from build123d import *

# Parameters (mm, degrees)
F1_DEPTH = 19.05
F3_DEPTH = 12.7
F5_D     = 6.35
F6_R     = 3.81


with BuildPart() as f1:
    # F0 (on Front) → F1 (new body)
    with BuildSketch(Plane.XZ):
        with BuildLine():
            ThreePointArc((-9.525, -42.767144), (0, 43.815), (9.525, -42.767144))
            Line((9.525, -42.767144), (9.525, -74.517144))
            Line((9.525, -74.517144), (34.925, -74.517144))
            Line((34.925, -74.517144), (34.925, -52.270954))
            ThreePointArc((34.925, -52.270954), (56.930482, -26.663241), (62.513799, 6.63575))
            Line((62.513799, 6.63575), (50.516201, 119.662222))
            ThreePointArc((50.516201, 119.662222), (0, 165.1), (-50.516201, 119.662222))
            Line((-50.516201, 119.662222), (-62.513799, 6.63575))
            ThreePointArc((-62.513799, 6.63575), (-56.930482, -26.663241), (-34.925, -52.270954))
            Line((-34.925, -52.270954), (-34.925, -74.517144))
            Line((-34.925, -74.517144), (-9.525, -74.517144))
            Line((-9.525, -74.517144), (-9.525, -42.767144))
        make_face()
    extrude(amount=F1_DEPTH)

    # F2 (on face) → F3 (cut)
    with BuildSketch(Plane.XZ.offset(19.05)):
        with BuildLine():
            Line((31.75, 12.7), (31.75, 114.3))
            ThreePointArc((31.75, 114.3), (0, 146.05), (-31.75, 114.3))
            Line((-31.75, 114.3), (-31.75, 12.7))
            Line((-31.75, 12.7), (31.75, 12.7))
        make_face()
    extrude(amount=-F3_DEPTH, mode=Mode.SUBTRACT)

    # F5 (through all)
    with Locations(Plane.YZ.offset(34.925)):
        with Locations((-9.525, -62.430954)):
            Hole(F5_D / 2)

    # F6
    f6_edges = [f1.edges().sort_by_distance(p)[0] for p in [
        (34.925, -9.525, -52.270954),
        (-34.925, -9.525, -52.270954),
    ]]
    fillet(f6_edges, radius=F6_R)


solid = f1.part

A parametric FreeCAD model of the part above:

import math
import FreeCAD as App
import Part
import Sketcher

V = App.Vector
Q = App.Units.Quantity


def edges_at(feature, points):
    """Names of the edges that pass closest to the given points."""
    edges = feature.Shape.Edges
    near = lambda p: min(range(len(edges)), key=lambda i: edges[i].distToShape(Part.Vertex(*p))[0])
    return sorted({f"Edge{near(p) + 1}" for p in points})

doc = App.newDocument("Part")
body = doc.addObject("PartDesign::Body", "Body")

# Sketch on XZ plane
sketch1 = body.newObject("Sketcher::SketchObject", "Sketch")
sketch1.AttachmentSupport = (doc.getObject("XZ_Plane"), [""])
sketch1.MapMode = "FlatFace"
sketch1.addGeometry(Part.ArcOfCircle(Part.Circle(V(0, 0, 0), V(0, 0, 1), 43.815), math.radians(-77.444142), math.radians(257.444142)), False)
sketch1.addGeometry(Part.LineSegment(V(9.525, -42.767144, 0), V(9.525, -74.517144, 0)), False)
sketch1.addGeometry(Part.LineSegment(V(9.525, -74.517144, 0), V(34.925, -74.517144, 0)), False)
sketch1.addGeometry(Part.LineSegment(V(34.925, -74.517144, 0), V(34.925, -52.270954, 0)), False)
sketch1.addGeometry(Part.ArcOfCircle(Part.Circle(V(-0.000002, 0.000001, 0), V(0, 0, 1), 62.865003), math.radians(-56.25101), math.radians(6.059174)), False)
sketch1.addGeometry(Part.LineSegment(V(62.513799, 6.63575, 0), V(50.516201, 119.662222, 0)), False)
sketch1.addGeometry(Part.ArcOfCircle(Part.Circle(V(0, 114.3, 0), V(0, 0, 1), 50.8), math.radians(6.059175), math.radians(173.940825)), False)
sketch1.addGeometry(Part.LineSegment(V(-50.516201, 119.662222, 0), V(-62.513799, 6.63575, 0)), False)
sketch1.addGeometry(Part.ArcOfCircle(Part.Circle(V(0.000002, 0.000001, 0), V(0, 0, 1), 62.865003), math.radians(173.940826), math.radians(236.25101)), False)
sketch1.addGeometry(Part.LineSegment(V(-34.925, -52.270954, 0), V(-34.925, -74.517144, 0)), False)
sketch1.addGeometry(Part.LineSegment(V(-34.925, -74.517144, 0), V(-9.525, -74.517144, 0)), False)
sketch1.addGeometry(Part.LineSegment(V(-9.525, -74.517144, 0), V(-9.525, -42.767144, 0)), False)
sketch1.addConstraint(Sketcher.Constraint("Coincident", 0, 1, 1, 1))
sketch1.addConstraint(Sketcher.Constraint("Coincident", 1, 2, 2, 1))
sketch1.addConstraint(Sketcher.Constraint("Coincident", 2, 2, 3, 1))
sketch1.addConstraint(Sketcher.Constraint("Coincident", 3, 2, 4, 1))
sketch1.addConstraint(Sketcher.Constraint("Tangent", 4, 2, 5, 1))
sketch1.addConstraint(Sketcher.Constraint("Tangent", 5, 2, 6, 1))
sketch1.addConstraint(Sketcher.Constraint("Tangent", 6, 2, 7, 1))
sketch1.addConstraint(Sketcher.Constraint("Tangent", 7, 2, 8, 1))
sketch1.addConstraint(Sketcher.Constraint("Coincident", 8, 2, 9, 1))
sketch1.addConstraint(Sketcher.Constraint("Coincident", 9, 2, 10, 1))
sketch1.addConstraint(Sketcher.Constraint("Coincident", 10, 2, 11, 1))
sketch1.addConstraint(Sketcher.Constraint("Coincident", 11, 2, 0, 2))
sketch1.addConstraint(Sketcher.Constraint("Vertical", 1))
sketch1.addConstraint(Sketcher.Constraint("Horizontal", 2))
sketch1.addConstraint(Sketcher.Constraint("Vertical", 3))
sketch1.addConstraint(Sketcher.Constraint("Vertical", 9))
sketch1.addConstraint(Sketcher.Constraint("Horizontal", 10))
sketch1.addConstraint(Sketcher.Constraint("Vertical", 11))
sketch1.addConstraint(Sketcher.Constraint("Coincident", 0, 3, -1, 1))
sketch1.addConstraint(Sketcher.Constraint("Coincident", 4, 3, -1, 1))
sketch1.addConstraint(Sketcher.Constraint("Coincident", 8, 3, -1, 1))
sketch1.addConstraint(Sketcher.Constraint("Equal", 4, 8))
sketch1.addConstraint(Sketcher.Constraint("Symmetric", 2, 2, 9, 2, -2))
sketch1.addConstraint(Sketcher.Constraint("PointOnObject", 6, 3, -2))
sketch1.addConstraint(Sketcher.Constraint("Horizontal", 0, 1, 11, 2))
sketch1.addConstraint(Sketcher.Constraint("Radius", 6, Q("2 in")))
sketch1.addConstraint(Sketcher.Constraint("DistanceX", 2, 1, 2, 2, Q("1 in")))
sketch1.addConstraint(Sketcher.Constraint("Radius", 0, Q("1.725 in")))
sketch1.addConstraint(Sketcher.Constraint("Radius", 4, Q("2.4750001 in")))
sketch1.addConstraint(Sketcher.Constraint("DistanceY", 1, 2, 1, 1, Q("1.25 in")))
sketch1.addConstraint(Sketcher.Constraint("DistanceY", -1, 1, 6, 3, Q("4.5 in")))
sketch1.addConstraint(Sketcher.Constraint("DistanceX", 8, 2, 0, 1, Q("1.75 in")))
pad1 = body.newObject("PartDesign::Pad", "Pad")
pad1.Profile = sketch1
pad1.Length = Q("0.75 in")

# Sketch on XZ plane
sketch2 = body.newObject("Sketcher::SketchObject", "Sketch001")
sketch2.AttachmentSupport = (doc.getObject("XZ_Plane"), [""])
sketch2.MapMode = "FlatFace"
sketch2.AttachmentOffset = App.Placement(V(0, 0, 0.75 * 25.4), App.Rotation())
sketch2.addGeometry(Part.LineSegment(V(31.75, 12.7, 0), V(31.75, 114.3, 0)), False)
sketch2.addGeometry(Part.ArcOfCircle(Part.Circle(V(0, 114.3, 0), V(0, 0, 1), 31.75), math.radians(0), math.radians(180)), False)
sketch2.addGeometry(Part.LineSegment(V(-31.75, 114.3, 0), V(-31.75, 12.7, 0)), False)
sketch2.addGeometry(Part.LineSegment(V(-31.75, 12.7, 0), V(31.75, 12.7, 0)), False)
sketch2.addConstraint(Sketcher.Constraint("Tangent", 0, 2, 1, 1))
sketch2.addConstraint(Sketcher.Constraint("Tangent", 1, 2, 2, 1))
sketch2.addConstraint(Sketcher.Constraint("Coincident", 2, 2, 3, 1))
sketch2.addConstraint(Sketcher.Constraint("Coincident", 3, 2, 0, 1))
sketch2.addConstraint(Sketcher.Constraint("Vertical", 0))
sketch2.addConstraint(Sketcher.Constraint("Vertical", 2))
sketch2.addConstraint(Sketcher.Constraint("Horizontal", 3))
sketch2.addConstraint(Sketcher.Constraint("PointOnObject", 1, 3, -2))
sketch2.addConstraint(Sketcher.Constraint("DistanceY", 0, 1, 0, 2, Q("4 in")))
sketch2.addConstraint(Sketcher.Constraint("Radius", 1, Q("1.25 in")))
sketch2.addConstraint(Sketcher.Constraint("DistanceY", -1, 1, 1, 3, Q("4.5 in")))
pocket1 = body.newObject("PartDesign::Pocket", "Pocket")
pocket1.Profile = sketch2
pocket1.Length = Q("0.5 in")

# Sketch on YZ plane
sketch3 = body.newObject("Sketcher::SketchObject", "Sketch002")
sketch3.AttachmentSupport = (doc.getObject("YZ_Plane"), [""])
sketch3.MapMode = "FlatFace"
sketch3.AttachmentOffset = App.Placement(V(0, 0, 1.375 * 25.4), App.Rotation())
sketch3.addGeometry(Part.Circle(V(-9.525, -62.430954, 0), V(0, 0, 1), 3.175), False)
sketch3.addConstraint(Sketcher.Constraint("Diameter", 0, Q("0.25 in")))
sketch3.addConstraint(Sketcher.Constraint("DistanceX", 0, 3, -1, 1, Q("0.375 in")))
sketch3.addConstraint(Sketcher.Constraint("DistanceY", 0, 3, -1, 1, Q("62.430954 mm")))
doc.recompute()
hole = body.newObject("PartDesign::Hole", "Hole")
hole.Profile = sketch3
hole.ThreadType = "None"
hole.Diameter = Q("0.25 in")
hole.DepthType = "ThroughAll"
doc.recompute()

fillet = body.newObject("PartDesign::Fillet", "Fillet")
fillet.Base = (hole, edges_at(hole, [(34.925, -9.525, -52.271), (-34.925, -9.525, -52.271)]))
fillet.Radius = Q("0.15 in")

doc.recompute()
